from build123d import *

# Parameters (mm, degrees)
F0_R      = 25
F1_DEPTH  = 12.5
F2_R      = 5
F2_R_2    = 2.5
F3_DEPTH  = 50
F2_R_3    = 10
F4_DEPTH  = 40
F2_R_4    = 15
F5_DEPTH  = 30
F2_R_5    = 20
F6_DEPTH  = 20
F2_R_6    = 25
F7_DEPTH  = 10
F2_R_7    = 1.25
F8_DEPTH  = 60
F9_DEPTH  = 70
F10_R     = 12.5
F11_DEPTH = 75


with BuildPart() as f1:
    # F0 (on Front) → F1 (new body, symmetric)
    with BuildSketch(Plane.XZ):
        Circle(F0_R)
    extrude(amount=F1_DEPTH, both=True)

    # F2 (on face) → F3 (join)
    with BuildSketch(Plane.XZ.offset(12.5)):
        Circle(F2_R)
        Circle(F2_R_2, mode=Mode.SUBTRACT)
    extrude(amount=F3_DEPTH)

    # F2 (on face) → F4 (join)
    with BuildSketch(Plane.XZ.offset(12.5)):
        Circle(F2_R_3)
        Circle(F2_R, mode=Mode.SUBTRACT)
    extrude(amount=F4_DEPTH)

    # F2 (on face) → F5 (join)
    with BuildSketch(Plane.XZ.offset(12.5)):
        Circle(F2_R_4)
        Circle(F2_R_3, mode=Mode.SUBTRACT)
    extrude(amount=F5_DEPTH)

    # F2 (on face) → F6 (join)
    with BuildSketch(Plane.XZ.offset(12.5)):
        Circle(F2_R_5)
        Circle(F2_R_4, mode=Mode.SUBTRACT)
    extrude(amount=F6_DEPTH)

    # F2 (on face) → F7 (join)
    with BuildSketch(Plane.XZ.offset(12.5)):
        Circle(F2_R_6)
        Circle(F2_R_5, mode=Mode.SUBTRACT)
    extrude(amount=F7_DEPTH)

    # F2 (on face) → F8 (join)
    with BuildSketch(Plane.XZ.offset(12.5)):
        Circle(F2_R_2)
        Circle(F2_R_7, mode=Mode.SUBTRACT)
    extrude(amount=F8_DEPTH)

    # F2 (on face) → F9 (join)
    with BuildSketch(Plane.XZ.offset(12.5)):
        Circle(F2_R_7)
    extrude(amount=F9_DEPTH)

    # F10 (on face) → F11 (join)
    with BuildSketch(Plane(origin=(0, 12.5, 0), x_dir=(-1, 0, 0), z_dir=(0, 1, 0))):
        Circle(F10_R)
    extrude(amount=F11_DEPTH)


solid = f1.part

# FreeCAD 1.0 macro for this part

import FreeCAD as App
import Part
import Sketcher

V = App.Vector

doc = App.newDocument("Part")
body = doc.addObject("PartDesign::Body", "Body")

sketch1 = doc.addObject("Sketcher::SketchObject", "Sketch")
body.addObject(sketch1)
sketch1.AttachmentSupport = (doc.XZ_Plane, [""])
sketch1.MapMode = "FlatFace"
sketch1.addGeometry(Part.Circle(V(0, 0, 0), V(0, 0, 1), 25), False)
sketch1.addConstraint([
    Sketcher.Constraint("Coincident", 0, 3, -1, 1),
    Sketcher.Constraint("Diameter", 0, 50.0),
])
pad1 = doc.addObject("PartDesign::Pad", "Pad")
body.addObject(pad1)
pad1.Profile = sketch1
pad1.Length = 25
pad1.Midplane = True

sketch2 = doc.addObject("Sketcher::SketchObject", "Sketch001")
body.addObject(sketch2)
sketch2.AttachmentSupport = (doc.XZ_Plane, [""])
sketch2.MapMode = "FlatFace"
sketch2.AttachmentOffset = App.Placement(V(0, 0, 12.5), App.Rotation())
sketch2.addGeometry([
    Part.Circle(V(0, 0, 0), V(0, 0, 1), 5),
    Part.Circle(V(0, 0, 0), V(0, 0, 1), 2.5),
], False)
sketch2.addConstraint([
    Sketcher.Constraint("Coincident", 0, 3, -1, 1),
    Sketcher.Constraint("Coincident", 1, 3, -1, 1),
    Sketcher.Constraint("Diameter", 0, 10.0),
    Sketcher.Constraint("Diameter", 1, 5.0),
])
pad2 = doc.addObject("PartDesign::Pad", "Pad001")
body.addObject(pad2)
pad2.Profile = sketch2
pad2.Length = 50

sketch3 = doc.addObject("Sketcher::SketchObject", "Sketch002")
body.addObject(sketch3)
sketch3.AttachmentSupport = (doc.XZ_Plane, [""])
sketch3.MapMode = "FlatFace"
sketch3.AttachmentOffset = App.Placement(V(0, 0, 12.5), App.Rotation())
sketch3.addGeometry([
    Part.Circle(V(0, 0, 0), V(0, 0, 1), 10),
    Part.Circle(V(0, 0, 0), V(0, 0, 1), 5),
], False)
sketch3.addConstraint([
    Sketcher.Constraint("Coincident", 0, 3, -1, 1),
    Sketcher.Constraint("Coincident", 1, 3, -1, 1),
    Sketcher.Constraint("Diameter", 0, 20.0),
    Sketcher.Constraint("Diameter", 1, 10.0),
])
pad3 = doc.addObject("PartDesign::Pad", "Pad002")
body.addObject(pad3)
pad3.Profile = sketch3
pad3.Length = 40

sketch4 = doc.addObject("Sketcher::SketchObject", "Sketch003")
body.addObject(sketch4)
sketch4.AttachmentSupport = (doc.XZ_Plane, [""])
sketch4.MapMode = "FlatFace"
sketch4.AttachmentOffset = App.Placement(V(0, 0, 12.5), App.Rotation())
sketch4.addGeometry([
    Part.Circle(V(0, 0, 0), V(0, 0, 1), 15),
    Part.Circle(V(0, 0, 0), V(0, 0, 1), 10),
], False)
sketch4.addConstraint([
    Sketcher.Constraint("Coincident", 0, 3, -1, 1),
    Sketcher.Constraint("Coincident", 1, 3, -1, 1),
    Sketcher.Constraint("Diameter", 0, 30.0),
    Sketcher.Constraint("Diameter", 1, 20.0),
])
pad4 = doc.addObject("PartDesign::Pad", "Pad003")
body.addObject(pad4)
pad4.Profile = sketch4
pad4.Length = 30

sketch5 = doc.addObject("Sketcher::SketchObject", "Sketch004")
body.addObject(sketch5)
sketch5.AttachmentSupport = (doc.XZ_Plane, [""])
sketch5.MapMode = "FlatFace"
sketch5.AttachmentOffset = App.Placement(V(0, 0, 12.5), App.Rotation())
sketch5.addGeometry([
    Part.Circle(V(0, 0, 0), V(0, 0, 1), 20),
    Part.Circle(V(0, 0, 0), V(0, 0, 1), 15),
], False)
sketch5.addConstraint([
    Sketcher.Constraint("Coincident", 0, 3, -1, 1),
    Sketcher.Constraint("Coincident", 1, 3, -1, 1),
    Sketcher.Constraint("Diameter", 0, 40.0),
    Sketcher.Constraint("Diameter", 1, 30.0),
])
pad5 = doc.addObject("PartDesign::Pad", "Pad004")
body.addObject(pad5)
pad5.Profile = sketch5
pad5.Length = 20

sketch6 = doc.addObject("Sketcher::SketchObject", "Sketch005")
body.addObject(sketch6)
sketch6.AttachmentSupport = (doc.XZ_Plane, [""])
sketch6.MapMode = "FlatFace"
sketch6.AttachmentOffset = App.Placement(V(0, 0, 12.5), App.Rotation())
sketch6.addGeometry([
    Part.Circle(V(0, 0, 0), V(0, 0, 1), 25),
    Part.Circle(V(0, 0, 0), V(0, 0, 1), 20),
], False)
sketch6.addConstraint([
    Sketcher.Constraint("Coincident", 0, 3, -1, 1),
    Sketcher.Constraint("Coincident", 1, 3, -1, 1),
    Sketcher.Constraint("Diameter", 0, 50.0),
    Sketcher.Constraint("Diameter", 1, 40.0),
])
pad6 = doc.addObject("PartDesign::Pad", "Pad005")
body.addObject(pad6)
pad6.Profile = sketch6
pad6.Length = 10

sketch7 = doc.addObject("Sketcher::SketchObject", "Sketch006")
body.addObject(sketch7)
sketch7.AttachmentSupport = (doc.XZ_Plane, [""])
sketch7.MapMode = "FlatFace"
sketch7.AttachmentOffset = App.Placement(V(0, 0, 12.5), App.Rotation())
sketch7.addGeometry([
    Part.Circle(V(0, 0, 0), V(0, 0, 1), 2.5),
    Part.Circle(V(0, 0, 0), V(0, 0, 1), 1.2),
], False)
sketch7.addConstraint([
    Sketcher.Constraint("Coincident", 0, 3, -1, 1),
    Sketcher.Constraint("Coincident", 1, 3, -1, 1),
    Sketcher.Constraint("Diameter", 0, 5.0),
    Sketcher.Constraint("Diameter", 1, 2.5),
])
pad7 = doc.addObject("PartDesign::Pad", "Pad006")
body.addObject(pad7)
pad7.Profile = sketch7
pad7.Length = 60

sketch8 = doc.addObject("Sketcher::SketchObject", "Sketch007")
body.addObject(sketch8)
sketch8.AttachmentSupport = (doc.XZ_Plane, [""])
sketch8.MapMode = "FlatFace"
sketch8.AttachmentOffset = App.Placement(V(0, 0, 12.5), App.Rotation())
sketch8.addGeometry(Part.Circle(V(0, 0, 0), V(0, 0, 1), 1.2), False)
sketch8.addConstraint([
    Sketcher.Constraint("Coincident", 0, 3, -1, 1),
    Sketcher.Constraint("Diameter", 0, 2.5),
])
pad8 = doc.addObject("PartDesign::Pad", "Pad007")
body.addObject(pad8)
pad8.Profile = sketch8
pad8.Length = 70

sketch9 = doc.addObject("Sketcher::SketchObject", "Sketch008")
body.addObject(sketch9)
sketch9.AttachmentSupport = (doc.XZ_Plane, [""])
sketch9.MapMode = "FlatFace"
sketch9.AttachmentOffset = App.Placement(V(0, 0, -12.5), App.Rotation())
sketch9.addGeometry(Part.Circle(V(0, 0, 0), V(0, 0, 1), 12), False)
sketch9.addConstraint([
    Sketcher.Constraint("Coincident", 0, 3, -1, 1),
    Sketcher.Constraint("Diameter", 0, 25.0),
])
pad9 = doc.addObject("PartDesign::Pad", "Pad008")
body.addObject(pad9)
pad9.Profile = sketch9
pad9.Length = 75
pad9.Reversed = True

doc.recompute()
